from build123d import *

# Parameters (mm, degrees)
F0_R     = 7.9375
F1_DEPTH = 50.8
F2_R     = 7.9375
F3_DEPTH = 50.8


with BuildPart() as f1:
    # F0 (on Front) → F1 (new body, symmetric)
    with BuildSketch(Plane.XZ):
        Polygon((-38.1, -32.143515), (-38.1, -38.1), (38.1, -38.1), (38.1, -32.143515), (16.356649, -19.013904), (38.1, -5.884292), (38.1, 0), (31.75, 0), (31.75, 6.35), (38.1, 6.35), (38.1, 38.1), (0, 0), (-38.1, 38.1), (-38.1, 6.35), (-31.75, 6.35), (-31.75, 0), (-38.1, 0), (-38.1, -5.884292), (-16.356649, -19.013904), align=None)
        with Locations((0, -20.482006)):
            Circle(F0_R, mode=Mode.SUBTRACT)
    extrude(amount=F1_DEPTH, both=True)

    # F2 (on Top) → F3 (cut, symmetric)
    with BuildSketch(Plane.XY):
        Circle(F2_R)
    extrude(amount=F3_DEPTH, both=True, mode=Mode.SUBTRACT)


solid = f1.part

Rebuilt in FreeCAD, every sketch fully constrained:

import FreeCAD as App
import Part
import Sketcher
Q = App.Units.Quantity


def add_polygon(sketch, points):
    """Adds a closed chain of lines whose ends are joined by coincident constraints."""
    first, n = sketch.GeometryCount, len(points)
    for a, b in zip(points, points[1:] + points[:1]):
        sketch.addGeometry(Part.LineSegment(App.Vector(*a, 0), App.Vector(*b, 0)), False)
    for i in range(n):
        sketch.addConstraint(Sketcher.Constraint("Coincident", first + i, 2, first + (i + 1) % n, 1))

doc = App.newDocument("Part")
body = doc.addObject("PartDesign::Body", "Body")

# Sketch on XZ plane
sketch1 = body.newObject("Sketcher::SketchObject", "Sketch")
sketch1.AttachmentSupport = (doc.getObject("XZ_Plane"), [""])
sketch1.MapMode = "FlatFace"
add_polygon(sketch1, [(-38, -32), (-38, -38), (38, -38), (38, -32), (16, -19), (38, -6), (38, 0), (32, 0), (32, 6), (38, 6), (38, 38), (0, 0), (-38, 38), (-38, 6), (-32, 6), (-32, 0), (-38, 0), (-38, -6), (-16, -19)])  # lines 0-18
sketch1.addGeometry(Part.Circle(App.Vector(0, -20, 0), App.Vector(0, 0, 1), 8), False)  # 19
sketch1.addConstraint(Sketcher.Constraint("Vertical", 0))
sketch1.addConstraint(Sketcher.Constraint("Horizontal", 1))
sketch1.addConstraint(Sketcher.Constraint("Vertical", 2))
sketch1.addConstraint(Sketcher.Constraint("Vertical", 5))
sketch1.addConstraint(Sketcher.Constraint("Horizontal", 6))
sketch1.addConstraint(Sketcher.Constraint("Vertical", 7))
sketch1.addConstraint(Sketcher.Constraint("Horizontal", 8))
sketch1.addConstraint(Sketcher.Constraint("Vertical", 9))
sketch1.addConstraint(Sketcher.Constraint("Vertical", 12))
sketch1.addConstraint(Sketcher.Constraint("Horizontal", 13))
sketch1.addConstraint(Sketcher.Constraint("Vertical", 14))
sketch1.addConstraint(Sketcher.Constraint("Horizontal", 15))
sketch1.addConstraint(Sketcher.Constraint("Vertical", 16))
sketch1.addConstraint(Sketcher.Constraint("Coincident", 10, 2, -1, 1))
sketch1.addConstraint(Sketcher.Constraint("Symmetric", 0, 2, 9, 2, -1, 1))
sketch1.addConstraint(Sketcher.Constraint("Symmetric", 1, 2, 11, 2, -1, 1))
sketch1.addConstraint(Sketcher.Constraint("Symmetric", 6, 2, 14, 2, -1, 1))
sketch1.addConstraint(Sketcher.Constraint("Symmetric", 8, 2, 12, 2, -2))
sketch1.addConstraint(Sketcher.Constraint("Symmetric", 5, 2, 15, 2, -2))
sketch1.addConstraint(Sketcher.Constraint("Symmetric", 3, 2, 17, 2, -2))
sketch1.addConstraint(Sketcher.Constraint("PointOnObject", 19, 3, -2))
sketch1.addConstraint(Sketcher.Constraint("Perpendicular", 10, 11))
sketch1.addConstraint(Sketcher.Constraint("Parallel", 3, 17))
sketch1.addConstraint(Sketcher.Constraint("Parallel", 4, 18))
sketch1.addConstraint(Sketcher.Constraint("Horizontal", 4, 2, 16, 2))
sketch1.addConstraint(Sketcher.Constraint("Vertical", 2, 2, 4, 2))
sketch1.addConstraint(Sketcher.Constraint("Equal", 15, 7))
sketch1.addConstraint(Sketcher.Constraint("DistanceX", 1, 1, 1, 2, Q("3 in")))
sketch1.addConstraint(Sketcher.Constraint("Distance", 3, Q("1 in")))
sketch1.addConstraint(Sketcher.Constraint("Diameter", 19, Q("0.625 in")))
sketch1.addConstraint(Sketcher.Constraint("DistanceX", 6, 2, 6, 1, Q("0.25 in")))
sketch1.addConstraint(Sketcher.Constraint("DistanceY", 19, 3, 3, 2, Q("1.468102 mm")))
sketch1.addConstraint(Sketcher.Constraint("DistanceY", 0, 2, 0, 1, Q("5.956485 mm")))
sketch1.addConstraint(Sketcher.Constraint("DistanceY", 5, 1, 5, 2, Q("5.884292 mm")))
pad1 = body.newObject("PartDesign::Pad", "Pad")
pad1.Profile = sketch1
pad1.Length = Q("4 in")
pad1.Midplane = True

# Sketch on XY plane
sketch2 = body.newObject("Sketcher::SketchObject", "Sketch001")
sketch2.AttachmentSupport = (doc.getObject("XY_Plane"), [""])
sketch2.MapMode = "FlatFace"
sketch2.addGeometry(Part.Circle(App.Vector(0, 0, 0), App.Vector(0, 0, 1), 8), False)
sketch2.addConstraint(Sketcher.Constraint("Coincident", 0, 3, -1, 1))
sketch2.addConstraint(Sketcher.Constraint("Diameter", 0, Q("0.625 in")))
pocket1 = body.newObject("PartDesign::Pocket", "Pocket")
pocket1.Profile = sketch2
pocket1.Length = Q("4 in")
pocket1.Midplane = True

doc.recompute()
